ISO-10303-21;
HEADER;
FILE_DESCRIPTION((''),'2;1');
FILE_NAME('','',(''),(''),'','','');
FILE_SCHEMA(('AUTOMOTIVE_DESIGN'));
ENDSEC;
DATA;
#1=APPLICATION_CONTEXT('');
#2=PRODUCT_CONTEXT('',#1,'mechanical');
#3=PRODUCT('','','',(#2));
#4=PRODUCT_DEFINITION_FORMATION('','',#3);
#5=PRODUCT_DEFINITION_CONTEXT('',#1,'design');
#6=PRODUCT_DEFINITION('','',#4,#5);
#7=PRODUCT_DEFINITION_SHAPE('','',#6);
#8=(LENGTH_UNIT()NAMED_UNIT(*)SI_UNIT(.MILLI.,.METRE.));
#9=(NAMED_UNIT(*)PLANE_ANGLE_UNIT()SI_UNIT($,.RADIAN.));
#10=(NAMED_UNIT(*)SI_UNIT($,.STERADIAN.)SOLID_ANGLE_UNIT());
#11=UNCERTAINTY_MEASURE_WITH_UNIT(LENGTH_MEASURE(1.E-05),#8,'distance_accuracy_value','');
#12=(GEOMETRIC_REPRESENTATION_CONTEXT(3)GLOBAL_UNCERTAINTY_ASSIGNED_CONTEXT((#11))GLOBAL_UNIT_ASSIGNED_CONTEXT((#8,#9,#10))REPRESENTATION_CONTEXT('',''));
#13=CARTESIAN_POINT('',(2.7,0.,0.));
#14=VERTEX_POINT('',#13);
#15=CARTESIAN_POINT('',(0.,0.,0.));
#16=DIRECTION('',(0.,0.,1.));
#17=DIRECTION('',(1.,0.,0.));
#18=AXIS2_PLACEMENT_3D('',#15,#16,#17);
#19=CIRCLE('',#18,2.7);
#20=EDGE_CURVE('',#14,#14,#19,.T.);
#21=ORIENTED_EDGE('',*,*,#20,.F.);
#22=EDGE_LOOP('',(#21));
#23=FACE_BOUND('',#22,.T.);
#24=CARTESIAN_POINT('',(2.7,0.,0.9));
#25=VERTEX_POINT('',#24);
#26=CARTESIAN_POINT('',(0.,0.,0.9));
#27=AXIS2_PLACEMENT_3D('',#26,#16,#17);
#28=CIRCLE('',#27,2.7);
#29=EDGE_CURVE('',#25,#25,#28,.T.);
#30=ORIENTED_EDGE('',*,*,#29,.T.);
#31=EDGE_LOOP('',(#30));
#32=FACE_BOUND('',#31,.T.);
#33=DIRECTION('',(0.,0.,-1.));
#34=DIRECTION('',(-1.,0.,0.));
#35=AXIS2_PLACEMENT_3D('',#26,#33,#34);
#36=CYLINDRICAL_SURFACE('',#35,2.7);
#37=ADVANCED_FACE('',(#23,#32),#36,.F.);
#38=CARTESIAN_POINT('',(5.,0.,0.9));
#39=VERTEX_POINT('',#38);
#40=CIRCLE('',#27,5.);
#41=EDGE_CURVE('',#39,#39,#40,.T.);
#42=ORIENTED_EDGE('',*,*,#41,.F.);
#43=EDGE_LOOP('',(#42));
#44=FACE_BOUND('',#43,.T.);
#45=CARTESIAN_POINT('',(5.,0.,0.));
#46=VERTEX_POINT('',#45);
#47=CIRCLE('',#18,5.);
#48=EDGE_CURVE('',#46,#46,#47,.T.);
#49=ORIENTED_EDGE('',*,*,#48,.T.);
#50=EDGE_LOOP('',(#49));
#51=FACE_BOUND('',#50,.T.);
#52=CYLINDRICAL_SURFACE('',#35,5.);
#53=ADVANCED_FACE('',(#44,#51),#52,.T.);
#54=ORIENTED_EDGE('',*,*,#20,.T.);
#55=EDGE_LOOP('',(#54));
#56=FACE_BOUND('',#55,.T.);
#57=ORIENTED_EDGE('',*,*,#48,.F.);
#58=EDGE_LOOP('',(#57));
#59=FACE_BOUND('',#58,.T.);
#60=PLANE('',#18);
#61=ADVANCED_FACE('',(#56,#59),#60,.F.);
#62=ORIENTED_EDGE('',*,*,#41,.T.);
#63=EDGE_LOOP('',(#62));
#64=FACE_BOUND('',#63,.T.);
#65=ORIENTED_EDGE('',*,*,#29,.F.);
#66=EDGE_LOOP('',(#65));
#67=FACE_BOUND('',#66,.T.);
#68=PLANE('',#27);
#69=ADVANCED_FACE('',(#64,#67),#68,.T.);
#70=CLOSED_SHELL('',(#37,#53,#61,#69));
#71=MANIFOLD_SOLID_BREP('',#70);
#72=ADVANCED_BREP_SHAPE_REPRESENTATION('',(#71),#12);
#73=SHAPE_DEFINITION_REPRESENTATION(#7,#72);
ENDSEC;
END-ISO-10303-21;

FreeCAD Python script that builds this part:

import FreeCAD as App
import Part
import Sketcher

V = App.Vector

doc = App.newDocument("Part")
body = doc.addObject("PartDesign::Body", "Body")

sketch1 = body.newObject("Sketcher::SketchObject", "Sketch")
sketch1.AttachmentSupport = (doc.getObject("XY_Plane"), [""])
sketch1.MapMode = "FlatFace"
sketch1.addGeometry(Part.Circle(V(0, 0, 0), V(0, 0, 1), 5), False)
sketch1.addGeometry(Part.Circle(V(0, 0, 0), V(0, 0, 1), 2.7), False)
sketch1.addConstraint(Sketcher.Constraint("Coincident", 0, 3, -1, 1))
sketch1.addConstraint(Sketcher.Constraint("Coincident", 1, 3, -1, 1))
sketch1.addConstraint(Sketcher.Constraint("Diameter", 0, 10.0))
sketch1.addConstraint(Sketcher.Constraint("Diameter", 1, 5.4))
pad1 = body.newObject("PartDesign::Pad", "Pad")
pad1.Profile = sketch1
pad1.Length = 0.9

doc.recompute()
